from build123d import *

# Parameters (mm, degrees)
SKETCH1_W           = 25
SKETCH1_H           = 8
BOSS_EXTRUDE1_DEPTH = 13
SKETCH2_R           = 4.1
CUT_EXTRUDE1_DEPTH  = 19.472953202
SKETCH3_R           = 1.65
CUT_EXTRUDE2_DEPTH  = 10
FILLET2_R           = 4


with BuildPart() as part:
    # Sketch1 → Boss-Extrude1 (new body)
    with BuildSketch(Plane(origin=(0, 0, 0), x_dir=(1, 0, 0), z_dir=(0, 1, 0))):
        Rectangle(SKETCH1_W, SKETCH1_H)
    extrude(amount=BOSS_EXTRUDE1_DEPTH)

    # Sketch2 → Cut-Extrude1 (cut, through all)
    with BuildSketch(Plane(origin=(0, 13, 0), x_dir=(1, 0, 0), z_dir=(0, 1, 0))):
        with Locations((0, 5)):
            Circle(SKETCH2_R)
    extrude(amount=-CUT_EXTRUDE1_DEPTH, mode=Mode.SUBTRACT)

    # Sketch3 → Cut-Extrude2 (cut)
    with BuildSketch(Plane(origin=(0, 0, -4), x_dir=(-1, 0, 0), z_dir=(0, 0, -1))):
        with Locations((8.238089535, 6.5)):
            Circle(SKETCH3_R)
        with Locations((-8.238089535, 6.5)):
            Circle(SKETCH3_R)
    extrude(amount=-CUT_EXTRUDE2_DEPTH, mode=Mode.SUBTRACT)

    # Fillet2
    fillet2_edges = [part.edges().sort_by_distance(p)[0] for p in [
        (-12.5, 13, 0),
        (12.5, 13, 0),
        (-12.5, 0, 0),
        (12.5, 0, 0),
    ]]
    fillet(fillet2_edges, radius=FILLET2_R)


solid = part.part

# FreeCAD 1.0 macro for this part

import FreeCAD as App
import Part
import Sketcher

V = App.Vector
Q = App.Units.Quantity


def edges_at(feature, points):
    """Names of the edges that pass closest to the given points."""
    edges = feature.Shape.Edges
    near = lambda p: min(range(len(edges)), key=lambda i: edges[i].distToShape(Part.Vertex(*p))[0])
    return sorted({f"Edge{near(p) + 1}" for p in points})

doc = App.newDocument("Part")
body = doc.addObject("PartDesign::Body", "Body")

# Sketch on XZ plane
sketch1 = body.newObject("Sketcher::SketchObject", "Sketch")
sketch1.AttachmentSupport = (doc.getObject("XZ_Plane"), [""])
sketch1.MapMode = "FlatFace"
sketch1.addGeometry([
    Part.LineSegment(V(-12.5, -4, 0), V(-12.5, 4, 0)),
    Part.LineSegment(V(-12.5, 4, 0), V(12.5, 4, 0)),
    Part.LineSegment(V(12.5, 4, 0), V(12.5, -4, 0)),
    Part.LineSegment(V(12.5, -4, 0), V(-12.5, -4, 0)),
], False)
sketch1.addConstraint([
    Sketcher.Constraint("Coincident", 0, 2, 1, 1),
    Sketcher.Constraint("Coincident", 1, 2, 2, 1),
    Sketcher.Constraint("Coincident", 2, 2, 3, 1),
    Sketcher.Constraint("Coincident", 3, 2, 0, 1),
    Sketcher.Constraint("Vertical", 0),
    Sketcher.Constraint("Horizontal", 1),
    Sketcher.Constraint("Vertical", 2),
    Sketcher.Constraint("Horizontal", 3),
    Sketcher.Constraint("Symmetric", 0, 2, 2, 2, -1, 1),
    Sketcher.Constraint("DistanceX", 1, 1, 1, 2, Q("25 mm")),
    Sketcher.Constraint("DistanceY", 0, 1, 0, 2, Q("8 mm")),
])
pad1 = body.newObject("PartDesign::Pad", "Pad")
pad1.Profile = sketch1
pad1.Length = 13
pad1.Reversed = True

# Sketch on XZ plane
sketch2 = body.newObject("Sketcher::SketchObject", "Sketch001")
sketch2.AttachmentSupport = (doc.getObject("XZ_Plane"), [""])
sketch2.MapMode = "FlatFace"
sketch2.AttachmentOffset = App.Placement(V(0, 0, -13), App.Rotation())
sketch2.addGeometry(Part.Circle(V(0, -5, 0), V(0, 0, 1), 4.1), False)
sketch2.addConstraint([
    Sketcher.Constraint("PointOnObject", 0, 3, -2),
    Sketcher.Constraint("Diameter", 0, Q("8.2 mm")),
    Sketcher.Constraint("DistanceY", 0, 3, -1, 1, Q("5 mm")),
])
pocket1 = body.newObject("PartDesign::Pocket", "Pocket")
pocket1.Profile = sketch2
pocket1.Type = "ThroughAll"
pocket1.Reversed = True

# Sketch on XY plane
sketch3 = body.newObject("Sketcher::SketchObject", "Sketch002")
sketch3.AttachmentSupport = (doc.getObject("XY_Plane"), [""])
sketch3.MapMode = "FlatFace"
sketch3.AttachmentOffset = App.Placement(V(0, 0, -4), App.Rotation())
sketch3.addGeometry([
    Part.Circle(V(-8.23809, 6.5, 0), V(0, 0, 1), 1.65),
    Part.Circle(V(8.23809, 6.5, 0), V(0, 0, 1), 1.65),
], False)
sketch3.addConstraint([
    Sketcher.Constraint("Equal", 0, 1),
    Sketcher.Constraint("Symmetric", 0, 3, 1, 3, -2),
    Sketcher.Constraint("Diameter", 0, Q("3.3 mm")),
    Sketcher.Constraint("DistanceY", -1, 1, 0, 3, Q("6.5 mm")),
    Sketcher.Constraint("DistanceX", 0, 3, -1, 1, Q("8.23809 mm")),
])
pocket2 = body.newObject("PartDesign::Pocket", "Pocket001")
pocket2.Profile = sketch3
pocket2.Length = 10
pocket2.Reversed = True
doc.recompute()

fillet = body.newObject("PartDesign::Fillet", "Fillet")
fillet.Base = (pocket2, edges_at(pocket2, [
    (-12.5, 13, 0),
    (12.5, 13, 0),
    (-12.5, 0, 0),
    (12.5, 0, 0),
]))
fillet.Radius = 4

doc.recompute()
